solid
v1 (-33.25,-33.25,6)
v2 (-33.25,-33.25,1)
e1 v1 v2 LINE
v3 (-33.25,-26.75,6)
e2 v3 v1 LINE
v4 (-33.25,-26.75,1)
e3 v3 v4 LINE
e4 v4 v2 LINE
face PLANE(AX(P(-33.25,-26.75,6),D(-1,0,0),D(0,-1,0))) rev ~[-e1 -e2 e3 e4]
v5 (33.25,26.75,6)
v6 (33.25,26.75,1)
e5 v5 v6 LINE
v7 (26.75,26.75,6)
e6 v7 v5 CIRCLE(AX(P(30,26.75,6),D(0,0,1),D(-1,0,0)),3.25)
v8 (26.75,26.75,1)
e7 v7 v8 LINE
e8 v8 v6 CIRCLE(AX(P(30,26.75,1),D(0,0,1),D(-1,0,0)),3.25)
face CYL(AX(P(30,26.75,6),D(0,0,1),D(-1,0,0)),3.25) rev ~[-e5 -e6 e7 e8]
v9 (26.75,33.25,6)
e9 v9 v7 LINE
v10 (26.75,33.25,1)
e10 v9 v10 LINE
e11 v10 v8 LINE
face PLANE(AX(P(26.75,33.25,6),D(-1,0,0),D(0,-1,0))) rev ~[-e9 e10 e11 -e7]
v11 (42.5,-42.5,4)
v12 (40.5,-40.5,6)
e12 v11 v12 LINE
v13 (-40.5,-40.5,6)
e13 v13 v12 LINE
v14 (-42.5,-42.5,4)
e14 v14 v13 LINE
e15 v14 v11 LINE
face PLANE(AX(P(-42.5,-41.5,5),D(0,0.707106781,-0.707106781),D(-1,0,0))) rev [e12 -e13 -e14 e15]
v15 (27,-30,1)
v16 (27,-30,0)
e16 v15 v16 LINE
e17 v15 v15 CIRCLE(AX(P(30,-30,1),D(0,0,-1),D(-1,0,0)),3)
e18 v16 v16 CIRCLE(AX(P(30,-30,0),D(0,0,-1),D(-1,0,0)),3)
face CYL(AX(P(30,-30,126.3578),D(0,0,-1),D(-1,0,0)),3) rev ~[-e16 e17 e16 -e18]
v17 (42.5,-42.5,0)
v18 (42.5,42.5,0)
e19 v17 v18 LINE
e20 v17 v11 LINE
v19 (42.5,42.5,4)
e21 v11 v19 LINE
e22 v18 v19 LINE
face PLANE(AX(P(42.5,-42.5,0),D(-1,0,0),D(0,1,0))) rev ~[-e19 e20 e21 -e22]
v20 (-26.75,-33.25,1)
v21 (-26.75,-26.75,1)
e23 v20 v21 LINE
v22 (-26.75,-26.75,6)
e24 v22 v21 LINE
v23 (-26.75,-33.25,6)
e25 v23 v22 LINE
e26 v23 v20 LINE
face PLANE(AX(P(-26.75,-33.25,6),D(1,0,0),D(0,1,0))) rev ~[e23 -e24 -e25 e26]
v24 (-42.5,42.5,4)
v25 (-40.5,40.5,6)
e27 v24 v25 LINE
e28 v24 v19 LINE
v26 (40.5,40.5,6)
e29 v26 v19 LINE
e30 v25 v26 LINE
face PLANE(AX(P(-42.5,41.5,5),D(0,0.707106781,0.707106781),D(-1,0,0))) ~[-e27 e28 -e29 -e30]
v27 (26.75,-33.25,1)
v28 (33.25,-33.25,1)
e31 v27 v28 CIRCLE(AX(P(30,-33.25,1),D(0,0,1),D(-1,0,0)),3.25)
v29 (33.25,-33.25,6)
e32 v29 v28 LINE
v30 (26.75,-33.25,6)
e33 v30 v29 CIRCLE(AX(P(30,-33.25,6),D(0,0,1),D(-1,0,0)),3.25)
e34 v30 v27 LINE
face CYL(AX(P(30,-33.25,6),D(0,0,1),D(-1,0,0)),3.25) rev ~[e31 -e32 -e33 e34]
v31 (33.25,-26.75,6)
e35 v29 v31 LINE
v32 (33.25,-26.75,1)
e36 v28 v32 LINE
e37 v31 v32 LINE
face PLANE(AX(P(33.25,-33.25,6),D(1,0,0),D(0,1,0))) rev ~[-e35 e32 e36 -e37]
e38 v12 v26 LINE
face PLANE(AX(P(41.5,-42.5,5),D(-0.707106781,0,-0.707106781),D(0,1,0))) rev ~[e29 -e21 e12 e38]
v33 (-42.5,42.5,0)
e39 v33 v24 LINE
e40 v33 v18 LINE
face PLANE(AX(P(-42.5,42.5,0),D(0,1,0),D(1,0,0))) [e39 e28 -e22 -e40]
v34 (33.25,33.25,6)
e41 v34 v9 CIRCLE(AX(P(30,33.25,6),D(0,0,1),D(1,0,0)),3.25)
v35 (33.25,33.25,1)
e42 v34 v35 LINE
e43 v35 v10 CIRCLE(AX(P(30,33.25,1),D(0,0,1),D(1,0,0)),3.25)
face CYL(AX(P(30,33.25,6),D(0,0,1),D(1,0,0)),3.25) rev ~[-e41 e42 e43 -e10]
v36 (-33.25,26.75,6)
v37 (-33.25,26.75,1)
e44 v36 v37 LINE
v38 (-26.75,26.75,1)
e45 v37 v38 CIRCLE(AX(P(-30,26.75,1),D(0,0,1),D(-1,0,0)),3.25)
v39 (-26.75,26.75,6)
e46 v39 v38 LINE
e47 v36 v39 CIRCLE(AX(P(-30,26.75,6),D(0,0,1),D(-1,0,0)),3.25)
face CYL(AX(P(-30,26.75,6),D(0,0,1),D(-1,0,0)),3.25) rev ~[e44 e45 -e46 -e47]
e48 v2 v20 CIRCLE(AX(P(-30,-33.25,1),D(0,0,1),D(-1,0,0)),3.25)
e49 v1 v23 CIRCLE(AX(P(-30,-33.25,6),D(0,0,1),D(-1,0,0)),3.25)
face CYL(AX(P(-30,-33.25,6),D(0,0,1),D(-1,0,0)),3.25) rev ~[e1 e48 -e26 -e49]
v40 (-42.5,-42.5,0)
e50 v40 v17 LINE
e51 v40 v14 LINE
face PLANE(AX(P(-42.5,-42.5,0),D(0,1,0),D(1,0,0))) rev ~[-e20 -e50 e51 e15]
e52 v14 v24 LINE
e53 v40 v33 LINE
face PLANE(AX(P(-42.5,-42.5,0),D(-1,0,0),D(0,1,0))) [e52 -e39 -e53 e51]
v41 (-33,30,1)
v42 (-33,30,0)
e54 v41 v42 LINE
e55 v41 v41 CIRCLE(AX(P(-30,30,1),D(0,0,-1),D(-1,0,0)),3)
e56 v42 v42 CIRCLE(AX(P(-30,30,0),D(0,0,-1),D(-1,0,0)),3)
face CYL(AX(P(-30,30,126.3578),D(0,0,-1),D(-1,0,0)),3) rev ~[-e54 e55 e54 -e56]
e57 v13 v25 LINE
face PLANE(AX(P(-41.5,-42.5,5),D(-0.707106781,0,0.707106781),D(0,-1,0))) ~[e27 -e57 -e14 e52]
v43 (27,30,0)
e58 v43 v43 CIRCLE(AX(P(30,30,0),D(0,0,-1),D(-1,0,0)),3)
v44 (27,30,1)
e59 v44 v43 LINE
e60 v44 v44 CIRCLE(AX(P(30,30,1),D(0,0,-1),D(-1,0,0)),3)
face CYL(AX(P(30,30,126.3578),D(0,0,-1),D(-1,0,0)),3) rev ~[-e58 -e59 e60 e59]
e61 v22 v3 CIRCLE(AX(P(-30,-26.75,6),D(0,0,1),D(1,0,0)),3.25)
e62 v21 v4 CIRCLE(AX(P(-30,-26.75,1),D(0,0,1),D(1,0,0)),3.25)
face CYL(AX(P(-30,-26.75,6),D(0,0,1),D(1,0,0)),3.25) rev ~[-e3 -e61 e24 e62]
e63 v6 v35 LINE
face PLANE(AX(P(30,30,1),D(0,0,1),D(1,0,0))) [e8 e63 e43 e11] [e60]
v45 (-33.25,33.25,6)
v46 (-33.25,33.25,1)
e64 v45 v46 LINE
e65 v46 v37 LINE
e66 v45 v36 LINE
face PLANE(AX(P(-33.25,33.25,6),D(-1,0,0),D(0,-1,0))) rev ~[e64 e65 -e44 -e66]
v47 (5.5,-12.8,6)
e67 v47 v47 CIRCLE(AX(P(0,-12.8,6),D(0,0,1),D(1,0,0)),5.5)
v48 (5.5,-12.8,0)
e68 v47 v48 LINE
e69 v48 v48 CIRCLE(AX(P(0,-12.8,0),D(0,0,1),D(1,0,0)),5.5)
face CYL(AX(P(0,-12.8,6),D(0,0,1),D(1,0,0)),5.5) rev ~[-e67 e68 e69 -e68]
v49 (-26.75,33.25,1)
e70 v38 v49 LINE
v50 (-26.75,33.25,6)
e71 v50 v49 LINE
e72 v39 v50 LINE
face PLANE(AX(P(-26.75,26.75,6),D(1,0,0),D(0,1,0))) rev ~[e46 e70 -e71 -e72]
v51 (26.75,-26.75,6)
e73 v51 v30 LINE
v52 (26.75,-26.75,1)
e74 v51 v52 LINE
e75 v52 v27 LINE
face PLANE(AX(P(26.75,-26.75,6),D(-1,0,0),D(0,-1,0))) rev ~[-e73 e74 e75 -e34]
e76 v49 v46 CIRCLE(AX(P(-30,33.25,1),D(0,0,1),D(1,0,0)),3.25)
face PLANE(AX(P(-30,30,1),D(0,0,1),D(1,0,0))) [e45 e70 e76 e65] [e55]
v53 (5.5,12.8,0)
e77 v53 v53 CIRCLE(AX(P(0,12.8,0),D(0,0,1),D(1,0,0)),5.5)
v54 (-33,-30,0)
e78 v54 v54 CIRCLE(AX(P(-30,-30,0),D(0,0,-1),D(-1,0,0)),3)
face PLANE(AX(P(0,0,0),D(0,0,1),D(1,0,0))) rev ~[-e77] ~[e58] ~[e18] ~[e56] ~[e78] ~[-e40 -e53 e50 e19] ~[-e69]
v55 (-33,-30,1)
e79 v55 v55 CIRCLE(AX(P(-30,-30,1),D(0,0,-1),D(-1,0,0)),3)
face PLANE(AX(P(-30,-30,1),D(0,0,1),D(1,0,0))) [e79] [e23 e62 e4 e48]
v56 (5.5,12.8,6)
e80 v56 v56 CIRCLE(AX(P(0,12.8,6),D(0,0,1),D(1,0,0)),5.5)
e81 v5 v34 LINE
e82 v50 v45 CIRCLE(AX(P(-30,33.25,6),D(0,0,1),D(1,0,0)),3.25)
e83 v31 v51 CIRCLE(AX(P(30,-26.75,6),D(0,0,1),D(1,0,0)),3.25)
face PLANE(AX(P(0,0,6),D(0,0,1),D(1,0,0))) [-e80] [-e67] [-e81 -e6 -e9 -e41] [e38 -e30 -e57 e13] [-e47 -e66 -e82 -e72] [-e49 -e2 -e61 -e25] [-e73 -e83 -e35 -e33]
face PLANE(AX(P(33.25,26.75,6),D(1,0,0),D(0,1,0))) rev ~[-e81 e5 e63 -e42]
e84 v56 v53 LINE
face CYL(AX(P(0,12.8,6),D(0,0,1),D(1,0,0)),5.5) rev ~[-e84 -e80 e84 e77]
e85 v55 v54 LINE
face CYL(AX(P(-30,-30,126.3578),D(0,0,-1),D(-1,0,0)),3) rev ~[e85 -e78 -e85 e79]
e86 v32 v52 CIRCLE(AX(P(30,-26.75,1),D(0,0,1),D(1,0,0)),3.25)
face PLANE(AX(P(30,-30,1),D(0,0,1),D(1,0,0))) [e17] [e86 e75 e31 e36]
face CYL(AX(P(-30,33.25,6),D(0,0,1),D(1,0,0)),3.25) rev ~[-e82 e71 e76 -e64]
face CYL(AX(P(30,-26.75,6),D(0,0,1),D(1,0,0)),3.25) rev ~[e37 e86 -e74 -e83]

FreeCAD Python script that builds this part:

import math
import FreeCAD as App
import Part
import Sketcher


def edges_at(feature, points):
    """Names of the edges that pass closest to the given points."""
    edges = feature.Shape.Edges
    near = lambda p: min(range(len(edges)), key=lambda i: edges[i].distToShape(Part.Vertex(*p))[0])
    return sorted({f"Edge{near(p) + 1}" for p in points})

doc = App.newDocument("Part")
params = doc.addObject("Spreadsheet::Sheet", "Params")
for row, (alias, value) in enumerate([
    ("sketch1_width", "85 mm"),
    ("pad1_length", "6 mm"),
    ("sketch2_diameter", "11 mm"),
    ("sketch3_diameter", "6 mm"),
    ("hole_diameter", "6 mm"),
    ("chamfer_size", "2 mm"),
    ("sketch4_radius", "3.25 mm"),
    ("sketch4_height", "6.5 mm"),
    ("pocket2_length", "5 mm"),
], start=1):
    params.set(f"A{row}", alias)
    params.set(f"B{row}", "=" + value)
    params.setAlias(f"B{row}", alias)

body = doc.addObject("PartDesign::Body", "Body")

# Sketch on XY plane
sketch1 = body.newObject("Sketcher::SketchObject", "Sketch")
sketch1.AttachmentSupport = (doc.getObject("XY_Plane"), [""])
sketch1.MapMode = "FlatFace"
sketch1.addGeometry(Part.LineSegment(App.Vector(-42, 42, 0), App.Vector(-42, -42, 0)), False)
sketch1.addGeometry(Part.LineSegment(App.Vector(-42, -42, 0), App.Vector(42, -42, 0)), False)
sketch1.addGeometry(Part.LineSegment(App.Vector(42, -42, 0), App.Vector(42, 42, 0)), False)
sketch1.addGeometry(Part.LineSegment(App.Vector(42, 42, 0), App.Vector(-42, 42, 0)), False)
sketch1.addConstraint(Sketcher.Constraint("Coincident", 0, 2, 1, 1))
sketch1.addConstraint(Sketcher.Constraint("Coincident", 1, 2, 2, 1))
sketch1.addConstraint(Sketcher.Constraint("Coincident", 2, 2, 3, 1))
sketch1.addConstraint(Sketcher.Constraint("Coincident", 3, 2, 0, 1))
sketch1.addConstraint(Sketcher.Constraint("Vertical", 0))
sketch1.addConstraint(Sketcher.Constraint("Horizontal", 1))
sketch1.addConstraint(Sketcher.Constraint("Vertical", 2))
sketch1.addConstraint(Sketcher.Constraint("Horizontal", 3))
sketch1.addConstraint(Sketcher.Constraint("Symmetric", 0, 2, 2, 2, -1, 1))
sketch1.addConstraint(Sketcher.Constraint("Equal", 3, 0))
sketch1.addConstraint(Sketcher.Constraint("DistanceX", 1, 1, 1, 2, 85.0))
sketch1.setExpression("Constraints[10]", "Params.sketch1_width")
pad1 = body.newObject("PartDesign::Pad", "Pad")
pad1.Profile = sketch1
pad1.setExpression("Length", "Params.pad1_length")

# Sketch on XY plane
sketch2 = body.newObject("Sketcher::SketchObject", "Sketch001")
sketch2.AttachmentSupport = (doc.getObject("XY_Plane"), [""])
sketch2.MapMode = "FlatFace"
sketch2.AttachmentOffset = App.Placement(App.Vector(0, 0, 6), App.Rotation())
sketch2.addGeometry(Part.Circle(App.Vector(0, 13, 0), App.Vector(0, 0, 1), 6), False)
sketch2.addGeometry(Part.Circle(App.Vector(0, -13, 0), App.Vector(0, 0, 1), 6), False)
sketch2.addConstraint(Sketcher.Constraint("Equal", 0, 1))
sketch2.addConstraint(Sketcher.Constraint("Symmetric", 0, 3, 1, 3, -1, 1))
sketch2.addConstraint(Sketcher.Constraint("PointOnObject", 0, 3, -2))
sketch2.addConstraint(Sketcher.Constraint("Diameter", 0, 11.0))
sketch2.addConstraint(Sketcher.Constraint("DistanceY", -1, 1, 0, 3, 12.8))
sketch2.setExpression("Constraints[3]", "Params.sketch2_diameter")
pocket1 = body.newObject("PartDesign::Pocket", "Pocket")
pocket1.Profile = sketch2
pocket1.Type = "ThroughAll"

# Sketch on XY plane
sketch3 = body.newObject("Sketcher::SketchObject", "Sketch002")
sketch3.AttachmentSupport = (doc.getObject("XY_Plane"), [""])
sketch3.MapMode = "FlatFace"
sketch3.AttachmentOffset = App.Placement(App.Vector(0, 0, 6), App.Rotation())
sketch3.addGeometry(Part.Circle(App.Vector(-30, -30, 0), App.Vector(0, 0, 1), 3), False)
sketch3.addGeometry(Part.Circle(App.Vector(-30, 30, 0), App.Vector(0, 0, 1), 3), False)
sketch3.addGeometry(Part.Circle(App.Vector(30, 30, 0), App.Vector(0, 0, 1), 3), False)
sketch3.addGeometry(Part.Circle(App.Vector(30, -30, 0), App.Vector(0, 0, 1), 3), False)
sketch3.addConstraint(Sketcher.Constraint("Equal", 0, 1))
sketch3.addConstraint(Sketcher.Constraint("Equal", 1, 2))
sketch3.addConstraint(Sketcher.Constraint("Equal", 2, 3))
sketch3.addConstraint(Sketcher.Constraint("Symmetric", 0, 3, 2, 3, -1, 1))
sketch3.addConstraint(Sketcher.Constraint("Symmetric", 1, 3, 3, 3, -1, 1))
sketch3.addConstraint(Sketcher.Constraint("Symmetric", 1, 3, 2, 3, -2))
sketch3.addConstraint(Sketcher.Constraint("Diameter", 0, 6.0))
sketch3.addConstraint(Sketcher.Constraint("DistanceX", 0, 3, -1, 1, 30.0))
sketch3.addConstraint(Sketcher.Constraint("DistanceY", 0, 3, -1, 1, 30.0))
sketch3.setExpression("Constraints[6]", "Params.sketch3_diameter")
doc.recompute()
hole = body.newObject("PartDesign::Hole", "Hole")
hole.Profile = sketch3
hole.ThreadType = "None"
hole.setExpression("Diameter", "Params.hole_diameter")
hole.DepthType = "ThroughAll"
doc.recompute()

chamfer = body.newObject("PartDesign::Chamfer", "Chamfer")
chamfer.Base = (hole, edges_at(hole, [
    (-42.5, 0, 6),
    (0, -42.5, 6),
    (42.5, 0, 6),
    (0, 42.5, 6),
]))
chamfer.setExpression("Size", "Params.chamfer_size")

# Sketch on XY plane
sketch4 = body.newObject("Sketcher::SketchObject", "Sketch003")
sketch4.AttachmentSupport = (doc.getObject("XY_Plane"), [""])
sketch4.MapMode = "FlatFace"
sketch4.AttachmentOffset = App.Placement(App.Vector(0, 0, 6), App.Rotation())
sketch4.addGeometry(Part.ArcOfCircle(Part.Circle(App.Vector(30, 33.2, 0), App.Vector(0, 0, 1), 3.2), math.radians(0), math.radians(180)), False)
sketch4.addGeometry(Part.LineSegment(App.Vector(26.8, 33.2, 0), App.Vector(26.8, 26.8, 0)), False)
sketch4.addGeometry(Part.ArcOfCircle(Part.Circle(App.Vector(30, 26.8, 0), App.Vector(0, 0, 1), 3.2), math.radians(180), math.radians(360)), False)
sketch4.addGeometry(Part.LineSegment(App.Vector(33.2, 26.8, 0), App.Vector(33.2, 33.2, 0)), False)
sketch4.addGeometry(Part.LineSegment(App.Vector(-26.8, 26.8, 0), App.Vector(-26.8, 33.2, 0)), False)
sketch4.addGeometry(Part.ArcOfCircle(Part.Circle(App.Vector(-30, 33.2, 0), App.Vector(0, 0, 1), 3.2), math.radians(0), math.radians(180)), False)
sketch4.addGeometry(Part.LineSegment(App.Vector(-33.2, 33.2, 0), App.Vector(-33.2, 26.8, 0)), False)
sketch4.addGeometry(Part.ArcOfCircle(Part.Circle(App.Vector(-30, 26.8, 0), App.Vector(0, 0, 1), 3.2), math.radians(180), math.radians(360)), False)
sketch4.addGeometry(Part.LineSegment(App.Vector(26.8, -26.8, 0), App.Vector(26.8, -33.2, 0)), False)
sketch4.addGeometry(Part.ArcOfCircle(Part.Circle(App.Vector(30, -33.2, 0), App.Vector(0, 0, 1), 3.2), math.radians(180), math.radians(360)), False)
sketch4.addGeometry(Part.LineSegment(App.Vector(33.2, -33.2, 0), App.Vector(33.2, -26.8, 0)), False)
sketch4.addGeometry(Part.ArcOfCircle(Part.Circle(App.Vector(30, -26.8, 0), App.Vector(0, 0, 1), 3.2), math.radians(0), math.radians(180)), False)
sketch4.addGeometry(Part.ArcOfCircle(Part.Circle(App.Vector(-30, -33.2, 0), App.Vector(0, 0, 1), 3.2), math.radians(180), math.radians(360)), False)
sketch4.addGeometry(Part.LineSegment(App.Vector(-26.8, -33.2, 0), App.Vector(-26.8, -26.8, 0)), False)
sketch4.addGeometry(Part.ArcOfCircle(Part.Circle(App.Vector(-30, -26.8, 0), App.Vector(0, 0, 1), 3.2), math.radians(0), math.radians(180)), False)
sketch4.addGeometry(Part.LineSegment(App.Vector(-33.2, -26.8, 0), App.Vector(-33.2, -33.2, 0)), False)
sketch4.addConstraint(Sketcher.Constraint("Tangent", 0, 2, 1, 1))
sketch4.addConstraint(Sketcher.Constraint("Tangent", 1, 2, 2, 1))
sketch4.addConstraint(Sketcher.Constraint("Tangent", 2, 2, 3, 1))
sketch4.addConstraint(Sketcher.Constraint("Tangent", 3, 2, 0, 1))
sketch4.addConstraint(Sketcher.Constraint("Tangent", 4, 2, 5, 1))
sketch4.addConstraint(Sketcher.Constraint("Tangent", 5, 2, 6, 1))
sketch4.addConstraint(Sketcher.Constraint("Tangent", 6, 2, 7, 1))
sketch4.addConstraint(Sketcher.Constraint("Tangent", 7, 2, 4, 1))
sketch4.addConstraint(Sketcher.Constraint("Tangent", 8, 2, 9, 1))
sketch4.addConstraint(Sketcher.Constraint("Tangent", 9, 2, 10, 1))
sketch4.addConstraint(Sketcher.Constraint("Tangent", 10, 2, 11, 1))
sketch4.addConstraint(Sketcher.Constraint("Tangent", 11, 2, 8, 1))
sketch4.addConstraint(Sketcher.Constraint("Tangent", 12, 2, 13, 1))
sketch4.addConstraint(Sketcher.Constraint("Tangent", 13, 2, 14, 1))
sketch4.addConstraint(Sketcher.Constraint("Tangent", 14, 2, 15, 1))
sketch4.addConstraint(Sketcher.Constraint("Tangent", 15, 2, 12, 1))
sketch4.addConstraint(Sketcher.Constraint("Vertical", 1))
sketch4.addConstraint(Sketcher.Constraint("Vertical", 3))
sketch4.addConstraint(Sketcher.Constraint("Vertical", 4))
sketch4.addConstraint(Sketcher.Constraint("Vertical", 6))
sketch4.addConstraint(Sketcher.Constraint("Vertical", 8))
sketch4.addConstraint(Sketcher.Constraint("Vertical", 10))
sketch4.addConstraint(Sketcher.Constraint("Vertical", 13))
sketch4.addConstraint(Sketcher.Constraint("Vertical", 15))
sketch4.addConstraint(Sketcher.Constraint("Equal", 2, 5))
sketch4.addConstraint(Sketcher.Constraint("Equal", 7, 9))
sketch4.addConstraint(Sketcher.Constraint("Equal", 11, 12))
sketch4.addConstraint(Sketcher.Constraint("Symmetric", 5, 3, 9, 3, -1, 1))
sketch4.addConstraint(Sketcher.Constraint("Symmetric", 0, 3, 12, 3, -1, 1))
sketch4.addConstraint(Sketcher.Constraint("Symmetric", 0, 3, 5, 3, -2))
sketch4.addConstraint(Sketcher.Constraint("Horizontal", 2, 3, 7, 3))
sketch4.addConstraint(Sketcher.Constraint("Horizontal", 11, 3, 14, 3))
sketch4.addConstraint(Sketcher.Constraint("Equal", 6, 8))
sketch4.addConstraint(Sketcher.Constraint("Radius", 0, 3.25))
sketch4.addConstraint(Sketcher.Constraint("DistanceY", 1, 2, 1, 1, 6.5))
sketch4.addConstraint(Sketcher.Constraint("DistanceX", -1, 1, 0, 3, 30.0))
sketch4.addConstraint(Sketcher.Constraint("DistanceY", 9, 3, 2, 3, 60.0))
sketch4.setExpression("Constraints[33]", "Params.sketch4_radius")
sketch4.setExpression("Constraints[34]", "Params.sketch4_height")
pocket2 = body.newObject("PartDesign::Pocket", "Pocket001")
pocket2.Profile = sketch4
pocket2.setExpression("Length", "Params.pocket2_length")

doc.recompute()
